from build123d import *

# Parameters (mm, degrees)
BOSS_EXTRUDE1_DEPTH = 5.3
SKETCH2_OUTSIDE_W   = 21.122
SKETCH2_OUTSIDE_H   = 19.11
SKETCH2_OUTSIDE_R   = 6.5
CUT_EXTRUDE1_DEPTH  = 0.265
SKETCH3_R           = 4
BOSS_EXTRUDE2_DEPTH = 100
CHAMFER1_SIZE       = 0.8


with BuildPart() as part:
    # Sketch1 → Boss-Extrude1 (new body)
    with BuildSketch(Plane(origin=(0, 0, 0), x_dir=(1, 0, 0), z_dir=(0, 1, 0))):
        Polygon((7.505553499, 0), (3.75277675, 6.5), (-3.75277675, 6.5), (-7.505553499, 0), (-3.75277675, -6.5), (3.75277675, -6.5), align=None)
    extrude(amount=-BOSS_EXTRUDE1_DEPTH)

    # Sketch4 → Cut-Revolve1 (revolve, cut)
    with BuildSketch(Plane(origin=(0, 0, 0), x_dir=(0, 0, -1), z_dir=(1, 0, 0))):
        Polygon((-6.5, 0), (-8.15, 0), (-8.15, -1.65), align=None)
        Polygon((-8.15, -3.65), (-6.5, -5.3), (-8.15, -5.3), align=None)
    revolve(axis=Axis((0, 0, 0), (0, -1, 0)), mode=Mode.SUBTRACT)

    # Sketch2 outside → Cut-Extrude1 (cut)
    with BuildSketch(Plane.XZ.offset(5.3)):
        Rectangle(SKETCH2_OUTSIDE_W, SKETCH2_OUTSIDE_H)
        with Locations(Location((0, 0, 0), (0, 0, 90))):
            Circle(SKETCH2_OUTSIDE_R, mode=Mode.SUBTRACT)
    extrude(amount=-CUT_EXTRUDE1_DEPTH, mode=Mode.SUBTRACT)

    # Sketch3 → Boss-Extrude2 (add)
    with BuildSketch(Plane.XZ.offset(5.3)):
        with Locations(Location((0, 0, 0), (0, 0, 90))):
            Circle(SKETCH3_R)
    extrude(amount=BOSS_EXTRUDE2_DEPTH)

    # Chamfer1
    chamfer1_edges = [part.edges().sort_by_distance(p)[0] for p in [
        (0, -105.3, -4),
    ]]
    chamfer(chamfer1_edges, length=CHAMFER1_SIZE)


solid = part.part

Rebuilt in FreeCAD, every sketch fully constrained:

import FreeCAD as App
import Part
import Sketcher
Q = App.Units.Quantity


def edges_at(feature, points):
    """Names of the edges that pass closest to the given points."""
    edges = feature.Shape.Edges
    near = lambda p: min(range(len(edges)), key=lambda i: edges[i].distToShape(Part.Vertex(*p))[0])
    return sorted({f"Edge{near(p) + 1}" for p in points})


def add_polygon(sketch, points):
    """Adds a closed chain of lines whose ends are joined by coincident constraints."""
    first, n = sketch.GeometryCount, len(points)
    for a, b in zip(points, points[1:] + points[:1]):
        sketch.addGeometry(Part.LineSegment(App.Vector(*a, 0), App.Vector(*b, 0)), False)
    for i in range(n):
        sketch.addConstraint(Sketcher.Constraint("Coincident", first + i, 2, first + (i + 1) % n, 1))

doc = App.newDocument("Part")
body = doc.addObject("PartDesign::Body", "Body")

# Sketch on XZ plane
sketch1 = body.newObject("Sketcher::SketchObject", "Sketch")
sketch1.AttachmentSupport = (doc.getObject("XZ_Plane"), [""])
sketch1.MapMode = "FlatFace"
add_polygon(sketch1, [(7.505553, 0), (3.752777, -6.5), (-3.752777, -6.5), (-7.505553, 0), (-3.752777, 6.5), (3.752777, 6.5)])  # lines 0-5
sketch1.addConstraint(Sketcher.Constraint("Horizontal", 1))
sketch1.addConstraint(Sketcher.Constraint("Horizontal", 4))
sketch1.addConstraint(Sketcher.Constraint("Symmetric", 0, 2, 3, 2, -1, 1))
sketch1.addConstraint(Sketcher.Constraint("Symmetric", 2, 2, 5, 2, -1, 1))
sketch1.addConstraint(Sketcher.Constraint("PointOnObject", 2, 2, -1))
sketch1.addConstraint(Sketcher.Constraint("Parallel", 2, 5))
sketch1.addConstraint(Sketcher.Constraint("Vertical", 1, 2, 3, 2))
sketch1.addConstraint(Sketcher.Constraint("Angle", 0, Q("-120 deg")))
sketch1.addConstraint(Sketcher.Constraint("DistanceY", 1, 2, 3, 2, 13.0))
sketch1.addConstraint(Sketcher.Constraint("DistanceX", 1, 2, 1, 1, 7.505554))
pad1 = body.newObject("PartDesign::Pad", "Pad")
pad1.Profile = sketch1
pad1.Length = 5.3

# Sketch on YZ plane
sketch2 = body.newObject("Sketcher::SketchObject", "Sketch001")
sketch2.AttachmentSupport = (doc.getObject("YZ_Plane"), [""])
sketch2.MapMode = "FlatFace"
add_polygon(sketch2, [(0, 6.5), (0, 8.15), (-1.65, 8.15)])  # lines 0-2
add_polygon(sketch2, [(-5.3, 6.5), (-3.65, 8.15), (-5.3, 8.15)])  # lines 3-5
sketch2.addConstraint(Sketcher.Constraint("Vertical", 0))
sketch2.addConstraint(Sketcher.Constraint("Horizontal", 1))
sketch2.addConstraint(Sketcher.Constraint("Horizontal", 4))
sketch2.addConstraint(Sketcher.Constraint("Vertical", 5))
sketch2.addConstraint(Sketcher.Constraint("PointOnObject", 0, 2, -2))
sketch2.addConstraint(Sketcher.Constraint("Perpendicular", 2, 3))
sketch2.addConstraint(Sketcher.Constraint("Horizontal", 1, 2, 3, 2))
sketch2.addConstraint(Sketcher.Constraint("Horizontal", 2, 2, 5, 2))
sketch2.addConstraint(Sketcher.Constraint("Equal", 1, 4))
sketch2.addConstraint(Sketcher.Constraint("DistanceX", 3, 2, 1, 2, 2.0))
sketch2.addConstraint(Sketcher.Constraint("DistanceX", 1, 2, 1, 1, 1.65))
sketch2.addConstraint(Sketcher.Constraint("DistanceY", -1, 1, 2, 2, 6.5))
groove = body.newObject("PartDesign::Groove", "Groove")
groove.Profile = sketch2
groove.ReferenceAxis = (sketch2, ["H_Axis"])
groove.Angle = 360

# Sketch on XZ plane
sketch3 = body.newObject("Sketcher::SketchObject", "Sketch002")
sketch3.AttachmentSupport = (doc.getObject("XZ_Plane"), [""])
sketch3.MapMode = "FlatFace"
sketch3.AttachmentOffset = App.Placement(App.Vector(0, 0, 5.3), App.Rotation())
add_polygon(sketch3, [(-10.561, 9.555), (-10.561, -9.555), (10.561, -9.555), (10.561, 9.555)])  # lines 0-3
sketch3.addGeometry(Part.Circle(App.Vector(0, 0, 0), App.Vector(0, 0, 1), 6.5), False)  # 4
sketch3.addConstraint(Sketcher.Constraint("Vertical", 0))
sketch3.addConstraint(Sketcher.Constraint("Horizontal", 1))
sketch3.addConstraint(Sketcher.Constraint("Vertical", 2))
sketch3.addConstraint(Sketcher.Constraint("Horizontal", 3))
sketch3.addConstraint(Sketcher.Constraint("Coincident", 4, 3, -1, 1))
sketch3.addConstraint(Sketcher.Constraint("Symmetric", 0, 2, 2, 2, -1, 1))
sketch3.addConstraint(Sketcher.Constraint("Diameter", 4, 13.0))
sketch3.addConstraint(Sketcher.Constraint("DistanceY", 0, 2, 0, 1, 19.11))
sketch3.addConstraint(Sketcher.Constraint("DistanceX", 1, 1, 1, 2, 21.122))
pocket1 = body.newObject("PartDesign::Pocket", "Pocket")
pocket1.Profile = sketch3
pocket1.Length = 0.265

# Sketch on XZ plane
sketch4 = body.newObject("Sketcher::SketchObject", "Sketch003")
sketch4.AttachmentSupport = (doc.getObject("XZ_Plane"), [""])
sketch4.MapMode = "FlatFace"
sketch4.AttachmentOffset = App.Placement(App.Vector(0, 0, 5.3), App.Rotation())
sketch4.addGeometry(Part.Circle(App.Vector(0, 0, 0), App.Vector(0, 0, 1), 4), False)
sketch4.addConstraint(Sketcher.Constraint("Coincident", 0, 3, -1, 1))
sketch4.addConstraint(Sketcher.Constraint("Diameter", 0, 8.0))
pad2 = body.newObject("PartDesign::Pad", "Pad001")
pad2.Profile = sketch4
pad2.Length = 100
doc.recompute()

chamfer = body.newObject("PartDesign::Chamfer", "Chamfer")
chamfer.Base = (pad2, edges_at(pad2, [(0, -105.3, -4)]))
chamfer.Size = 0.8

doc.recompute()
